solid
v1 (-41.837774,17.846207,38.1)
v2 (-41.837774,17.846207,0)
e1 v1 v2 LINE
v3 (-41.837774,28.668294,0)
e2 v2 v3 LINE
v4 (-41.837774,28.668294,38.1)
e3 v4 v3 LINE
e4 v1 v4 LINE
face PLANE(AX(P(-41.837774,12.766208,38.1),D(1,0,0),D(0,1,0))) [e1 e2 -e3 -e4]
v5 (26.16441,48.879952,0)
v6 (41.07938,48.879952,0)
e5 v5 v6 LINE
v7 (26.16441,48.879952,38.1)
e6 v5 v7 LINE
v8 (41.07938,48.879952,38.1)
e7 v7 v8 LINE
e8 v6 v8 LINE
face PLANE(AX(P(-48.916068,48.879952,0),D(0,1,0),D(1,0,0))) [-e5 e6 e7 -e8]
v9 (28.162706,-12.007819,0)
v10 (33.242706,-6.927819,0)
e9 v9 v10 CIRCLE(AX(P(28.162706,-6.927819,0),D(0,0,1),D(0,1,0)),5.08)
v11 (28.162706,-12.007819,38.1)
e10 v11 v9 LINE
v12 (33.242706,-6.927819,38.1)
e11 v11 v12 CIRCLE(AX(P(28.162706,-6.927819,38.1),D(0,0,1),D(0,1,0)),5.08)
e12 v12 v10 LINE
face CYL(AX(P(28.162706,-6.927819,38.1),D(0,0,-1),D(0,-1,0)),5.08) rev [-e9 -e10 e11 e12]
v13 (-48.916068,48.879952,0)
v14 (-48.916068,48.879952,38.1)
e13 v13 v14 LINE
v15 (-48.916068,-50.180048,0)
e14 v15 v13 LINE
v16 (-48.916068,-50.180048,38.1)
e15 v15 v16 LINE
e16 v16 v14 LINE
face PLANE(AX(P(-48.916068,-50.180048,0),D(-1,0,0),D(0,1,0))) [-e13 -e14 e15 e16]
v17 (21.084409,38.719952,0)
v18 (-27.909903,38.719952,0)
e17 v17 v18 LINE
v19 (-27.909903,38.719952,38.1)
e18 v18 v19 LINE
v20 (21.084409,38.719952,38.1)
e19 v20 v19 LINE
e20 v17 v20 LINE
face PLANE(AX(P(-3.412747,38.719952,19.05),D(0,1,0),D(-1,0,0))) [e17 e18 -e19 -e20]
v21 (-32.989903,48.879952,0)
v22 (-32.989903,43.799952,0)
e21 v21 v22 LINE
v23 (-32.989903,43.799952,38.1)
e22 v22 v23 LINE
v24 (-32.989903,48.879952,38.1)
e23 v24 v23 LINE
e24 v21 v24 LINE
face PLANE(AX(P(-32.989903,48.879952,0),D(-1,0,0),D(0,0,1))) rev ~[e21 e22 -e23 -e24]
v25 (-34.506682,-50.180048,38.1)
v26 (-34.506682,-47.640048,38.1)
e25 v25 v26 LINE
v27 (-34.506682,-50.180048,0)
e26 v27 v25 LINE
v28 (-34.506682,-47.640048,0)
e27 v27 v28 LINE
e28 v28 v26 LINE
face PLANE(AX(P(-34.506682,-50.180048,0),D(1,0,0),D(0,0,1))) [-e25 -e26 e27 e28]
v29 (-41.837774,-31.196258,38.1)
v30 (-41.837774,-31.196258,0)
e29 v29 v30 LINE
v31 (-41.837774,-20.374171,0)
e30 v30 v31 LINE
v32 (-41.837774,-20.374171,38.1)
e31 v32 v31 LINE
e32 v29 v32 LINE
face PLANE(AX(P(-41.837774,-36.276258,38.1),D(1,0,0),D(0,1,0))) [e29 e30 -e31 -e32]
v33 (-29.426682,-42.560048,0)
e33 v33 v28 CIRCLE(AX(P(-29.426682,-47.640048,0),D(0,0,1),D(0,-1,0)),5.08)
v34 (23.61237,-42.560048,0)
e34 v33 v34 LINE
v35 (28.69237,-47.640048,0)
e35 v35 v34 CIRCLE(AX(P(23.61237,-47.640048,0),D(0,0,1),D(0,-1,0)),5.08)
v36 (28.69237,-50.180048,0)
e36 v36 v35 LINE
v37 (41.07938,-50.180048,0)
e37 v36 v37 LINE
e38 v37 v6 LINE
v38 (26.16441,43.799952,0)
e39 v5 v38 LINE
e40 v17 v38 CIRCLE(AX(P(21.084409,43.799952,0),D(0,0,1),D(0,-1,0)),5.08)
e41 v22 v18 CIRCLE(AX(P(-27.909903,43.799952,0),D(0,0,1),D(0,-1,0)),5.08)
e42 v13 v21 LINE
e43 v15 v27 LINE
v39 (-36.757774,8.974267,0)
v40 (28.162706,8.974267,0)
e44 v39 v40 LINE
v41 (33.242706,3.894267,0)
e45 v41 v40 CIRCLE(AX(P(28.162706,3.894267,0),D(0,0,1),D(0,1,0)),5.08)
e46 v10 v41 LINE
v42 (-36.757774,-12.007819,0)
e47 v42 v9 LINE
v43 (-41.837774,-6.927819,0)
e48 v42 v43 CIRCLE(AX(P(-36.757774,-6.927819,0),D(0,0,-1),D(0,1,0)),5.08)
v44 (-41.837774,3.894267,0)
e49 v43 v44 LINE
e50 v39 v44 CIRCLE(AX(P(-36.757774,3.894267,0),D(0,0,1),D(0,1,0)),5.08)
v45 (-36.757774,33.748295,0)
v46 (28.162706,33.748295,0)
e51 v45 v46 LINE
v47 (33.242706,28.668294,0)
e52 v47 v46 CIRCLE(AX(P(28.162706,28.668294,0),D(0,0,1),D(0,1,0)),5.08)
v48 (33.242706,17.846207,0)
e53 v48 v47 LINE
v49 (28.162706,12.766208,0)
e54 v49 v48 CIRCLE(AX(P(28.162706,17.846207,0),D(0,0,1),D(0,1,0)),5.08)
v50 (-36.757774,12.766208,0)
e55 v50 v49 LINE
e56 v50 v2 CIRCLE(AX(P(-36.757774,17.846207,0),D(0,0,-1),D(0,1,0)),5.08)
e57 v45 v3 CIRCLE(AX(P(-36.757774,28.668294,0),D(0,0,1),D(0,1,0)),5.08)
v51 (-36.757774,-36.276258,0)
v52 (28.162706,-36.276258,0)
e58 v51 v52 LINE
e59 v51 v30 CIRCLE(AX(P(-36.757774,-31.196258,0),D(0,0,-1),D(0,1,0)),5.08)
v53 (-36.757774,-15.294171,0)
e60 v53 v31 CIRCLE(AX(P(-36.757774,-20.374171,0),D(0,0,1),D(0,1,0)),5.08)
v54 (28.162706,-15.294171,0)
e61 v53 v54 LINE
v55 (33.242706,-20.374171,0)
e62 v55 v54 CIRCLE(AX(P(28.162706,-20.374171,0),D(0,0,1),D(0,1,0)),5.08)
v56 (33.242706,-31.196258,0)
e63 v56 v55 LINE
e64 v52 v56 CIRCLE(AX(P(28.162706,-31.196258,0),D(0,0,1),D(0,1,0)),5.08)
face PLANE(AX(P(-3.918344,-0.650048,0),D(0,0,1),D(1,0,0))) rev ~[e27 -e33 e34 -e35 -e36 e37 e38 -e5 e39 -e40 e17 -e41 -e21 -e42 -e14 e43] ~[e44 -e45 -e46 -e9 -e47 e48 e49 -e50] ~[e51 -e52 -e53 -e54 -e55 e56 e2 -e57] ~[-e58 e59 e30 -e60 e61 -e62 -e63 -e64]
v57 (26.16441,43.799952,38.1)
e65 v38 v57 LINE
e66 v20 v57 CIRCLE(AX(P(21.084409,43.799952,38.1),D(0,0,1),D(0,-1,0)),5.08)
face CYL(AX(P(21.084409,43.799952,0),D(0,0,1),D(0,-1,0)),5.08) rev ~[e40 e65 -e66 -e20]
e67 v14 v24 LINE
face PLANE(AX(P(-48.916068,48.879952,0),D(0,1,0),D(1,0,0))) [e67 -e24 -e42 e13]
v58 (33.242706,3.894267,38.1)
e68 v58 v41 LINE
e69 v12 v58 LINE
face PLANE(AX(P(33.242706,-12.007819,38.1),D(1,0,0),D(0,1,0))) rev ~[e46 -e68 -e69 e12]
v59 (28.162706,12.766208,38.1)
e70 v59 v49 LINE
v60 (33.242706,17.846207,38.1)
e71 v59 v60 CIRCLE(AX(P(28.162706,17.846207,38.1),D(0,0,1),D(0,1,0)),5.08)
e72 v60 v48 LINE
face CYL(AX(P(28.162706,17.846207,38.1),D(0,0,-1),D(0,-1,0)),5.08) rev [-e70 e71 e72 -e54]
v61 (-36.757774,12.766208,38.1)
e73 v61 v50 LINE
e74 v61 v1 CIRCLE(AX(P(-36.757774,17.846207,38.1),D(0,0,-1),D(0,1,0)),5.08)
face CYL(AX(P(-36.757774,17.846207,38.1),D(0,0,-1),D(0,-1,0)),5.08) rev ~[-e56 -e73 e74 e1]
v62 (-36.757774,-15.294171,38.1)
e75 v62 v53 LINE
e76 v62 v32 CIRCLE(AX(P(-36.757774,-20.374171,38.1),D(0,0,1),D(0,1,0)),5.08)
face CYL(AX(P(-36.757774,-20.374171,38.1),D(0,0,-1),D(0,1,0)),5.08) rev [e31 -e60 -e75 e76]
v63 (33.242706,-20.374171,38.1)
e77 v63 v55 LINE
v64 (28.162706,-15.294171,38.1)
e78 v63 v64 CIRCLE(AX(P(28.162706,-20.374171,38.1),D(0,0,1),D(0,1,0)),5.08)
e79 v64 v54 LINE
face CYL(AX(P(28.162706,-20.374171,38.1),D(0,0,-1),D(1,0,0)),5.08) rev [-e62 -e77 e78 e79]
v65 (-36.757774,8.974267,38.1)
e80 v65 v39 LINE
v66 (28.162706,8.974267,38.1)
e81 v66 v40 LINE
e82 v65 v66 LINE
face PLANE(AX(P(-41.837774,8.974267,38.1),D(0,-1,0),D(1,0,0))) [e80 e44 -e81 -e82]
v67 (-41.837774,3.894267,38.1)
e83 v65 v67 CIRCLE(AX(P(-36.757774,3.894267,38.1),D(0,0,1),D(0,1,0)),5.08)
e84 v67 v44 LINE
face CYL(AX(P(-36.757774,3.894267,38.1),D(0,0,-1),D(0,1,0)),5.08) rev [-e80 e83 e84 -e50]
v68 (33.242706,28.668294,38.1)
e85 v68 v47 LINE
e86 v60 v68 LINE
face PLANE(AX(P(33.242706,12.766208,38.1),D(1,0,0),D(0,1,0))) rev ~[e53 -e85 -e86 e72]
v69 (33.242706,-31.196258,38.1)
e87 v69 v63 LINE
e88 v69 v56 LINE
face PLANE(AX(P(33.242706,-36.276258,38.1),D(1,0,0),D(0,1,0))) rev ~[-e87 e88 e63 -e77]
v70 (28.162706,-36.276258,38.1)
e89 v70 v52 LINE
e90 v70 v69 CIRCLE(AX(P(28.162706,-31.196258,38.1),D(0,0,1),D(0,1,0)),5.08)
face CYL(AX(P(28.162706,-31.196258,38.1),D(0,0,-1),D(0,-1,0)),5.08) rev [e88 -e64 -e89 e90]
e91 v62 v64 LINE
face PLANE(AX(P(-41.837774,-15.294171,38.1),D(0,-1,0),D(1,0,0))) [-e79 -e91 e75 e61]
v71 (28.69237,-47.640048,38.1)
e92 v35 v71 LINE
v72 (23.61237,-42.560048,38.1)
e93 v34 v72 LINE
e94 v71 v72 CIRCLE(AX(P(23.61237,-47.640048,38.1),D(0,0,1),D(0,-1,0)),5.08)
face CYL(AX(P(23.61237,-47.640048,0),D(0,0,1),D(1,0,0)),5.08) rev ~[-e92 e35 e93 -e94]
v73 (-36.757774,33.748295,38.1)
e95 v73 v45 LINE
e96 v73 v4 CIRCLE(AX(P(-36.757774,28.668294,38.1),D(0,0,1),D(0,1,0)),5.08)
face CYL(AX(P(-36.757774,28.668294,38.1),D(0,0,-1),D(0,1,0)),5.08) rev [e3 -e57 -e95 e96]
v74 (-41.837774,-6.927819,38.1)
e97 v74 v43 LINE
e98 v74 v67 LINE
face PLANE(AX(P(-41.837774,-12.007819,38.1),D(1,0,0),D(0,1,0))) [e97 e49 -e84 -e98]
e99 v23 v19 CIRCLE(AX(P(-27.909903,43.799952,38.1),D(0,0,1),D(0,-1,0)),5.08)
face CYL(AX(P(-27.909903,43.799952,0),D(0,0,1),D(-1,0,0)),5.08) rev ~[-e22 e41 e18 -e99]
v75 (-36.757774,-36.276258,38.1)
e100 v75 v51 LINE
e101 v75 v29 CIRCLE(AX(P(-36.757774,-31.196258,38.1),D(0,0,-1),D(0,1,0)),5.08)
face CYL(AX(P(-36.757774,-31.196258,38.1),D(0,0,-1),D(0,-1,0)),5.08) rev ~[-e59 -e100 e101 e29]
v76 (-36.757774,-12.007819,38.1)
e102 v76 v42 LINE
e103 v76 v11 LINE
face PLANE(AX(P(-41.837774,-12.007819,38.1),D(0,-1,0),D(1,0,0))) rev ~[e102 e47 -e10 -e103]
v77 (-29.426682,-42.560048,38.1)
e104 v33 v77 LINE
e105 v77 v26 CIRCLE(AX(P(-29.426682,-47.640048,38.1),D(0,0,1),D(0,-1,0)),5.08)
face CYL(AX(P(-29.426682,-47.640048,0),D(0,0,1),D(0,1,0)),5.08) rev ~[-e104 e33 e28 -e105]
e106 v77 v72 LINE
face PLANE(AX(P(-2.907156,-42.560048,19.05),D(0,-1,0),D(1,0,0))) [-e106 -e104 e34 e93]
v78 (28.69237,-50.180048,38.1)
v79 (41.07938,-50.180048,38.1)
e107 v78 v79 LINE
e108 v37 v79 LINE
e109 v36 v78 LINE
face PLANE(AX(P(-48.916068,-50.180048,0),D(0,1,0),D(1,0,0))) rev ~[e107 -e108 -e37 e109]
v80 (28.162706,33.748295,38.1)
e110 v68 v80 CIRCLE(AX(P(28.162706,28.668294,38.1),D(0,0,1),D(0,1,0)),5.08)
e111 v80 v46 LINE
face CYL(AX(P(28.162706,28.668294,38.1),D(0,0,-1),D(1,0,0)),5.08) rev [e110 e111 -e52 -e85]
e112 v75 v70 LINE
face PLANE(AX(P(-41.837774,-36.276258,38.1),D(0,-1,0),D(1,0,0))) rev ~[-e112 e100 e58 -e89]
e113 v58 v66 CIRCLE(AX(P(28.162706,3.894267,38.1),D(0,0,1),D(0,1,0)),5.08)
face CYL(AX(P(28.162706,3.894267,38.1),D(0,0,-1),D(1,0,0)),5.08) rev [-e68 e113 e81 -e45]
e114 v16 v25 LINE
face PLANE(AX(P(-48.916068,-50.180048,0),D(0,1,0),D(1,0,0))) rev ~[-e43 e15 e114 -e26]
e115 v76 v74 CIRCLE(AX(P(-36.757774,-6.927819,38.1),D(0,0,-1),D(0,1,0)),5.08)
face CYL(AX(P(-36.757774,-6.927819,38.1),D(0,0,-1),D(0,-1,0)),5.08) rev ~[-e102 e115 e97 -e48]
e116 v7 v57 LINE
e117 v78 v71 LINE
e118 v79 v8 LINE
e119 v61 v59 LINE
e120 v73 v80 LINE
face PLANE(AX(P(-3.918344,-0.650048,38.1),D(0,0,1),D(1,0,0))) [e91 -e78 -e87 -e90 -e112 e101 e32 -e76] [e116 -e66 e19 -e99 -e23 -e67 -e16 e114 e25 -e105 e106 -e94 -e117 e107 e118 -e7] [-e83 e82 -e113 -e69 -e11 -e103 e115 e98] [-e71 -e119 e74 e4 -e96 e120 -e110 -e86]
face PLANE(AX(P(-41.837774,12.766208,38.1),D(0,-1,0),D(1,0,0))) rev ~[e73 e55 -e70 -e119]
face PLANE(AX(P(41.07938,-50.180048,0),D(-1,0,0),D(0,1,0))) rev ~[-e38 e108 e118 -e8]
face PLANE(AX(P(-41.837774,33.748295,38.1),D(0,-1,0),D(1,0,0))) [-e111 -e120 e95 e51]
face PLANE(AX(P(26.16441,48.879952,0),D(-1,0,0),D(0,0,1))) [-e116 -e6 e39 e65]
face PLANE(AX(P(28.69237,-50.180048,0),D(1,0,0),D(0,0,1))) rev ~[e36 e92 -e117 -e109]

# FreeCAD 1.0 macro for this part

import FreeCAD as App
import Part
import Sketcher
Q = App.Units.Quantity


def edges_at(feature, points):
    """Names of the edges that pass closest to the given points."""
    edges = feature.Shape.Edges
    near = lambda p: min(range(len(edges)), key=lambda i: edges[i].distToShape(Part.Vertex(*p))[0])
    return sorted({f"Edge{near(p) + 1}" for p in points})

doc = App.newDocument("Part")
body = doc.addObject("PartDesign::Body", "Body")

sketch1 = body.newObject("Sketcher::SketchObject", "Sketch")
sketch1.AttachmentSupport = (doc.getObject("XY_Plane"), [""])
sketch1.MapMode = "FlatFace"
sketch1.addGeometry([
    Part.LineSegment(App.Vector(-49, 49, 0), App.Vector(-49, -50, 0)),
    Part.LineSegment(App.Vector(-49, -50, 0), App.Vector(41, -50, 0)),
    Part.LineSegment(App.Vector(41, -50, 0), App.Vector(41, 49, 0)),
    Part.LineSegment(App.Vector(41, 49, 0), App.Vector(-49, 49, 0)),
], False)
sketch1.addConstraint([
    Sketcher.Constraint("Coincident", 0, 2, 1, 1),
    Sketcher.Constraint("Coincident", 1, 2, 2, 1),
    Sketcher.Constraint("Coincident", 2, 2, 3, 1),
    Sketcher.Constraint("Coincident", 3, 2, 0, 1),
    Sketcher.Constraint("Vertical", 0),
    Sketcher.Constraint("Horizontal", 1),
    Sketcher.Constraint("Vertical", 2),
    Sketcher.Constraint("Horizontal", 3),
    Sketcher.Constraint("DistanceY", 0, 2, 0, 1, Q("3.9 in")),
    Sketcher.Constraint("DistanceX", 1, 1, 1, 2, Q("89.995448 mm")),
    Sketcher.Constraint("DistanceX", 0, 2, -1, 1, Q("48.916068 mm")),
    Sketcher.Constraint("DistanceY", 0, 2, -1, 1, Q("50.180048 mm")),
])
pad1 = body.newObject("PartDesign::Pad", "Pad")
pad1.Profile = sketch1
pad1.Length = Q("1.5 in")

sketch2 = body.newObject("Sketcher::SketchObject", "Sketch001")
sketch2.AttachmentSupport = (doc.getObject("XY_Plane"), [""])
sketch2.MapMode = "FlatFace"
sketch2.AttachmentOffset = App.Placement(App.Vector(0, 0, 1.5 * 25.4), App.Rotation())
sketch2.addGeometry([
    Part.LineSegment(App.Vector(-42, 34, 0), App.Vector(-42, 13, 0)),
    Part.LineSegment(App.Vector(-42, 13, 0), App.Vector(33, 13, 0)),
    Part.LineSegment(App.Vector(33, 13, 0), App.Vector(33, 34, 0)),
    Part.LineSegment(App.Vector(33, 34, 0), App.Vector(-42, 34, 0)),
    Part.LineSegment(App.Vector(-42, 9, 0), App.Vector(-42, -12, 0)),
    Part.LineSegment(App.Vector(-42, -12, 0), App.Vector(33, -12, 0)),
    Part.LineSegment(App.Vector(33, -12, 0), App.Vector(33, 9, 0)),
    Part.LineSegment(App.Vector(33, 9, 0), App.Vector(-42, 9, 0)),
    Part.LineSegment(App.Vector(-42, -15, 0), App.Vector(-42, -36, 0)),
    Part.LineSegment(App.Vector(-42, -36, 0), App.Vector(33, -36, 0)),
    Part.LineSegment(App.Vector(33, -36, 0), App.Vector(33, -15, 0)),
    Part.LineSegment(App.Vector(33, -15, 0), App.Vector(-42, -15, 0)),
], False)
sketch2.addConstraint([
    Sketcher.Constraint("Coincident", 0, 2, 1, 1),
    Sketcher.Constraint("Coincident", 1, 2, 2, 1),
    Sketcher.Constraint("Coincident", 2, 2, 3, 1),
    Sketcher.Constraint("Coincident", 3, 2, 0, 1),
    Sketcher.Constraint("Coincident", 4, 2, 5, 1),
    Sketcher.Constraint("Coincident", 5, 2, 6, 1),
    Sketcher.Constraint("Coincident", 6, 2, 7, 1),
    Sketcher.Constraint("Coincident", 7, 2, 4, 1),
    Sketcher.Constraint("Coincident", 8, 2, 9, 1),
    Sketcher.Constraint("Coincident", 9, 2, 10, 1),
    Sketcher.Constraint("Coincident", 10, 2, 11, 1),
    Sketcher.Constraint("Coincident", 11, 2, 8, 1),
    Sketcher.Constraint("Vertical", 0),
    Sketcher.Constraint("Horizontal", 1),
    Sketcher.Constraint("Vertical", 2),
    Sketcher.Constraint("Horizontal", 3),
    Sketcher.Constraint("Vertical", 4),
    Sketcher.Constraint("Horizontal", 5),
    Sketcher.Constraint("Vertical", 6),
    Sketcher.Constraint("Horizontal", 7),
    Sketcher.Constraint("Vertical", 8),
    Sketcher.Constraint("Horizontal", 9),
    Sketcher.Constraint("Vertical", 10),
    Sketcher.Constraint("Horizontal", 11),
    Sketcher.Constraint("Vertical", 3, 2, 4, 2),
    Sketcher.Constraint("Vertical", 2, 2, 5, 2),
    Sketcher.Constraint("Vertical", 7, 2, 8, 2),
    Sketcher.Constraint("Vertical", 6, 2, 9, 2),
    Sketcher.Constraint("Equal", 2, 4),
    Sketcher.Constraint("Equal", 6, 8),
    Sketcher.Constraint("DistanceX", 1, 1, 1, 2, Q("75.08048 mm")),
    Sketcher.Constraint("DistanceY", 0, 2, 0, 1, Q("20.982087 mm")),
    Sketcher.Constraint("DistanceY", 4, 2, -1, 1, Q("12.007819 mm")),
    Sketcher.Constraint("DistanceY", 8, 2, -1, 1, Q("36.276258 mm")),
    Sketcher.Constraint("DistanceY", 6, 2, 1, 2, Q("3.791941 mm")),
    Sketcher.Constraint("DistanceX", 0, 2, -1, 1, Q("41.837774 mm")),
])
pocket1 = body.newObject("PartDesign::Pocket", "Pocket")
pocket1.Profile = sketch2
pocket1.Length = Q("1.5 in")
doc.recompute()

fillet = body.newObject("PartDesign::Fillet", "Fillet")
fillet.Base = (pocket1, edges_at(pocket1, [
    (33.243, 33.748, 19.05),
    (33.243, 8.974, 19.05),
    (33.243, -15.294, 19.05),
    (-41.838, 33.748, 19.05),
    (-41.838, 8.974, 19.05),
    (-41.838, -15.294, 19.05),
    (-41.838, -36.276, 19.05),
    (-41.838, -12.008, 19.05),
    (-41.838, 12.766, 19.05),
    (33.243, -36.276, 19.05),
    (33.243, -12.008, 19.05),
    (33.243, 12.766, 19.05),
]))
fillet.Radius = Q("0.2 in")

sketch3 = body.newObject("Sketcher::SketchObject", "Sketch002")
sketch3.AttachmentSupport = (doc.getObject("XZ_Plane"), [""])
sketch3.MapMode = "FlatFace"
sketch3.AttachmentOffset = App.Placement(App.Vector(0, 0, -48.879952), App.Rotation())
sketch3.addGeometry([
    Part.LineSegment(App.Vector(26, 38, 0), App.Vector(26, 0, 0)),
    Part.LineSegment(App.Vector(26, 0, 0), App.Vector(-33, 0, 0)),
    Part.LineSegment(App.Vector(-33, 0, 0), App.Vector(-33, 38, 0)),
    Part.LineSegment(App.Vector(-33, 38, 0), App.Vector(26, 38, 0)),
], False)
sketch3.addConstraint([
    Sketcher.Constraint("Coincident", 0, 2, 1, 1),
    Sketcher.Constraint("Coincident", 1, 2, 2, 1),
    Sketcher.Constraint("Coincident", 2, 2, 3, 1),
    Sketcher.Constraint("Coincident", 3, 2, 0, 1),
    Sketcher.Constraint("Vertical", 0),
    Sketcher.Constraint("Horizontal", 1),
    Sketcher.Constraint("Vertical", 2),
    Sketcher.Constraint("Horizontal", 3),
    Sketcher.Constraint("PointOnObject", 0, 2, -1),
    Sketcher.Constraint("DistanceY", 0, 2, 0, 1, Q("1.5 in")),
    Sketcher.Constraint("DistanceX", 1, 2, 1, 1, Q("59.154313 mm")),
    Sketcher.Constraint("DistanceX", -1, 1, 0, 2, Q("26.16441 mm")),
])
pocket2 = body.newObject("PartDesign::Pocket", "Pocket001")
pocket2.Profile = sketch3
pocket2.Length = Q("0.4 in")
pocket2.Reversed = True
doc.recompute()

fillet2 = body.newObject("PartDesign::Fillet", "Fillet001")
fillet2.Base = (pocket2, edges_at(pocket2, [(-32.99, 38.72, 19.05), (26.164, 38.72, 19.05)]))
fillet2.Radius = Q("0.2 in")

sketch4 = body.newObject("Sketcher::SketchObject", "Sketch003")
sketch4.AttachmentSupport = (doc.getObject("XZ_Plane"), [""])
sketch4.MapMode = "FlatFace"
sketch4.AttachmentOffset = App.Placement(App.Vector(0, 0, 50.180048), App.Rotation())
sketch4.addGeometry([
    Part.LineSegment(App.Vector(-35, 38, 0), App.Vector(-35, 0, 0)),
    Part.LineSegment(App.Vector(-35, 0, 0), App.Vector(29, 0, 0)),
    Part.LineSegment(App.Vector(29, 0, 0), App.Vector(29, 38, 0)),
    Part.LineSegment(App.Vector(29, 38, 0), App.Vector(-35, 38, 0)),
], False)
sketch4.addConstraint([
    Sketcher.Constraint("Coincident", 0, 2, 1, 1),
    Sketcher.Constraint("Coincident", 1, 2, 2, 1),
    Sketcher.Constraint("Coincident", 2, 2, 3, 1),
    Sketcher.Constraint("Coincident", 3, 2, 0, 1),
    Sketcher.Constraint("Vertical", 0),
    Sketcher.Constraint("Horizontal", 1),
    Sketcher.Constraint("Vertical", 2),
    Sketcher.Constraint("Horizontal", 3),
    Sketcher.Constraint("PointOnObject", 0, 2, -1),
    Sketcher.Constraint("DistanceY", 0, 2, 0, 1, Q("1.5 in")),
    Sketcher.Constraint("DistanceX", 1, 1, 1, 2, Q("63.199052 mm")),
    Sketcher.Constraint("DistanceX", 0, 2, -1, 1, Q("34.506682 mm")),
])
pocket3 = body.newObject("PartDesign::Pocket", "Pocket002")
pocket3.Profile = sketch4
pocket3.Length = Q("0.3 in")
doc.recompute()

fillet3 = body.newObject("PartDesign::Fillet", "Fillet002")
fillet3.Base = (pocket3, edges_at(pocket3, [(28.692, -42.56, 19.05), (-34.507, -42.56, 19.05)]))
fillet3.Radius = Q("0.2 in")

doc.recompute()
